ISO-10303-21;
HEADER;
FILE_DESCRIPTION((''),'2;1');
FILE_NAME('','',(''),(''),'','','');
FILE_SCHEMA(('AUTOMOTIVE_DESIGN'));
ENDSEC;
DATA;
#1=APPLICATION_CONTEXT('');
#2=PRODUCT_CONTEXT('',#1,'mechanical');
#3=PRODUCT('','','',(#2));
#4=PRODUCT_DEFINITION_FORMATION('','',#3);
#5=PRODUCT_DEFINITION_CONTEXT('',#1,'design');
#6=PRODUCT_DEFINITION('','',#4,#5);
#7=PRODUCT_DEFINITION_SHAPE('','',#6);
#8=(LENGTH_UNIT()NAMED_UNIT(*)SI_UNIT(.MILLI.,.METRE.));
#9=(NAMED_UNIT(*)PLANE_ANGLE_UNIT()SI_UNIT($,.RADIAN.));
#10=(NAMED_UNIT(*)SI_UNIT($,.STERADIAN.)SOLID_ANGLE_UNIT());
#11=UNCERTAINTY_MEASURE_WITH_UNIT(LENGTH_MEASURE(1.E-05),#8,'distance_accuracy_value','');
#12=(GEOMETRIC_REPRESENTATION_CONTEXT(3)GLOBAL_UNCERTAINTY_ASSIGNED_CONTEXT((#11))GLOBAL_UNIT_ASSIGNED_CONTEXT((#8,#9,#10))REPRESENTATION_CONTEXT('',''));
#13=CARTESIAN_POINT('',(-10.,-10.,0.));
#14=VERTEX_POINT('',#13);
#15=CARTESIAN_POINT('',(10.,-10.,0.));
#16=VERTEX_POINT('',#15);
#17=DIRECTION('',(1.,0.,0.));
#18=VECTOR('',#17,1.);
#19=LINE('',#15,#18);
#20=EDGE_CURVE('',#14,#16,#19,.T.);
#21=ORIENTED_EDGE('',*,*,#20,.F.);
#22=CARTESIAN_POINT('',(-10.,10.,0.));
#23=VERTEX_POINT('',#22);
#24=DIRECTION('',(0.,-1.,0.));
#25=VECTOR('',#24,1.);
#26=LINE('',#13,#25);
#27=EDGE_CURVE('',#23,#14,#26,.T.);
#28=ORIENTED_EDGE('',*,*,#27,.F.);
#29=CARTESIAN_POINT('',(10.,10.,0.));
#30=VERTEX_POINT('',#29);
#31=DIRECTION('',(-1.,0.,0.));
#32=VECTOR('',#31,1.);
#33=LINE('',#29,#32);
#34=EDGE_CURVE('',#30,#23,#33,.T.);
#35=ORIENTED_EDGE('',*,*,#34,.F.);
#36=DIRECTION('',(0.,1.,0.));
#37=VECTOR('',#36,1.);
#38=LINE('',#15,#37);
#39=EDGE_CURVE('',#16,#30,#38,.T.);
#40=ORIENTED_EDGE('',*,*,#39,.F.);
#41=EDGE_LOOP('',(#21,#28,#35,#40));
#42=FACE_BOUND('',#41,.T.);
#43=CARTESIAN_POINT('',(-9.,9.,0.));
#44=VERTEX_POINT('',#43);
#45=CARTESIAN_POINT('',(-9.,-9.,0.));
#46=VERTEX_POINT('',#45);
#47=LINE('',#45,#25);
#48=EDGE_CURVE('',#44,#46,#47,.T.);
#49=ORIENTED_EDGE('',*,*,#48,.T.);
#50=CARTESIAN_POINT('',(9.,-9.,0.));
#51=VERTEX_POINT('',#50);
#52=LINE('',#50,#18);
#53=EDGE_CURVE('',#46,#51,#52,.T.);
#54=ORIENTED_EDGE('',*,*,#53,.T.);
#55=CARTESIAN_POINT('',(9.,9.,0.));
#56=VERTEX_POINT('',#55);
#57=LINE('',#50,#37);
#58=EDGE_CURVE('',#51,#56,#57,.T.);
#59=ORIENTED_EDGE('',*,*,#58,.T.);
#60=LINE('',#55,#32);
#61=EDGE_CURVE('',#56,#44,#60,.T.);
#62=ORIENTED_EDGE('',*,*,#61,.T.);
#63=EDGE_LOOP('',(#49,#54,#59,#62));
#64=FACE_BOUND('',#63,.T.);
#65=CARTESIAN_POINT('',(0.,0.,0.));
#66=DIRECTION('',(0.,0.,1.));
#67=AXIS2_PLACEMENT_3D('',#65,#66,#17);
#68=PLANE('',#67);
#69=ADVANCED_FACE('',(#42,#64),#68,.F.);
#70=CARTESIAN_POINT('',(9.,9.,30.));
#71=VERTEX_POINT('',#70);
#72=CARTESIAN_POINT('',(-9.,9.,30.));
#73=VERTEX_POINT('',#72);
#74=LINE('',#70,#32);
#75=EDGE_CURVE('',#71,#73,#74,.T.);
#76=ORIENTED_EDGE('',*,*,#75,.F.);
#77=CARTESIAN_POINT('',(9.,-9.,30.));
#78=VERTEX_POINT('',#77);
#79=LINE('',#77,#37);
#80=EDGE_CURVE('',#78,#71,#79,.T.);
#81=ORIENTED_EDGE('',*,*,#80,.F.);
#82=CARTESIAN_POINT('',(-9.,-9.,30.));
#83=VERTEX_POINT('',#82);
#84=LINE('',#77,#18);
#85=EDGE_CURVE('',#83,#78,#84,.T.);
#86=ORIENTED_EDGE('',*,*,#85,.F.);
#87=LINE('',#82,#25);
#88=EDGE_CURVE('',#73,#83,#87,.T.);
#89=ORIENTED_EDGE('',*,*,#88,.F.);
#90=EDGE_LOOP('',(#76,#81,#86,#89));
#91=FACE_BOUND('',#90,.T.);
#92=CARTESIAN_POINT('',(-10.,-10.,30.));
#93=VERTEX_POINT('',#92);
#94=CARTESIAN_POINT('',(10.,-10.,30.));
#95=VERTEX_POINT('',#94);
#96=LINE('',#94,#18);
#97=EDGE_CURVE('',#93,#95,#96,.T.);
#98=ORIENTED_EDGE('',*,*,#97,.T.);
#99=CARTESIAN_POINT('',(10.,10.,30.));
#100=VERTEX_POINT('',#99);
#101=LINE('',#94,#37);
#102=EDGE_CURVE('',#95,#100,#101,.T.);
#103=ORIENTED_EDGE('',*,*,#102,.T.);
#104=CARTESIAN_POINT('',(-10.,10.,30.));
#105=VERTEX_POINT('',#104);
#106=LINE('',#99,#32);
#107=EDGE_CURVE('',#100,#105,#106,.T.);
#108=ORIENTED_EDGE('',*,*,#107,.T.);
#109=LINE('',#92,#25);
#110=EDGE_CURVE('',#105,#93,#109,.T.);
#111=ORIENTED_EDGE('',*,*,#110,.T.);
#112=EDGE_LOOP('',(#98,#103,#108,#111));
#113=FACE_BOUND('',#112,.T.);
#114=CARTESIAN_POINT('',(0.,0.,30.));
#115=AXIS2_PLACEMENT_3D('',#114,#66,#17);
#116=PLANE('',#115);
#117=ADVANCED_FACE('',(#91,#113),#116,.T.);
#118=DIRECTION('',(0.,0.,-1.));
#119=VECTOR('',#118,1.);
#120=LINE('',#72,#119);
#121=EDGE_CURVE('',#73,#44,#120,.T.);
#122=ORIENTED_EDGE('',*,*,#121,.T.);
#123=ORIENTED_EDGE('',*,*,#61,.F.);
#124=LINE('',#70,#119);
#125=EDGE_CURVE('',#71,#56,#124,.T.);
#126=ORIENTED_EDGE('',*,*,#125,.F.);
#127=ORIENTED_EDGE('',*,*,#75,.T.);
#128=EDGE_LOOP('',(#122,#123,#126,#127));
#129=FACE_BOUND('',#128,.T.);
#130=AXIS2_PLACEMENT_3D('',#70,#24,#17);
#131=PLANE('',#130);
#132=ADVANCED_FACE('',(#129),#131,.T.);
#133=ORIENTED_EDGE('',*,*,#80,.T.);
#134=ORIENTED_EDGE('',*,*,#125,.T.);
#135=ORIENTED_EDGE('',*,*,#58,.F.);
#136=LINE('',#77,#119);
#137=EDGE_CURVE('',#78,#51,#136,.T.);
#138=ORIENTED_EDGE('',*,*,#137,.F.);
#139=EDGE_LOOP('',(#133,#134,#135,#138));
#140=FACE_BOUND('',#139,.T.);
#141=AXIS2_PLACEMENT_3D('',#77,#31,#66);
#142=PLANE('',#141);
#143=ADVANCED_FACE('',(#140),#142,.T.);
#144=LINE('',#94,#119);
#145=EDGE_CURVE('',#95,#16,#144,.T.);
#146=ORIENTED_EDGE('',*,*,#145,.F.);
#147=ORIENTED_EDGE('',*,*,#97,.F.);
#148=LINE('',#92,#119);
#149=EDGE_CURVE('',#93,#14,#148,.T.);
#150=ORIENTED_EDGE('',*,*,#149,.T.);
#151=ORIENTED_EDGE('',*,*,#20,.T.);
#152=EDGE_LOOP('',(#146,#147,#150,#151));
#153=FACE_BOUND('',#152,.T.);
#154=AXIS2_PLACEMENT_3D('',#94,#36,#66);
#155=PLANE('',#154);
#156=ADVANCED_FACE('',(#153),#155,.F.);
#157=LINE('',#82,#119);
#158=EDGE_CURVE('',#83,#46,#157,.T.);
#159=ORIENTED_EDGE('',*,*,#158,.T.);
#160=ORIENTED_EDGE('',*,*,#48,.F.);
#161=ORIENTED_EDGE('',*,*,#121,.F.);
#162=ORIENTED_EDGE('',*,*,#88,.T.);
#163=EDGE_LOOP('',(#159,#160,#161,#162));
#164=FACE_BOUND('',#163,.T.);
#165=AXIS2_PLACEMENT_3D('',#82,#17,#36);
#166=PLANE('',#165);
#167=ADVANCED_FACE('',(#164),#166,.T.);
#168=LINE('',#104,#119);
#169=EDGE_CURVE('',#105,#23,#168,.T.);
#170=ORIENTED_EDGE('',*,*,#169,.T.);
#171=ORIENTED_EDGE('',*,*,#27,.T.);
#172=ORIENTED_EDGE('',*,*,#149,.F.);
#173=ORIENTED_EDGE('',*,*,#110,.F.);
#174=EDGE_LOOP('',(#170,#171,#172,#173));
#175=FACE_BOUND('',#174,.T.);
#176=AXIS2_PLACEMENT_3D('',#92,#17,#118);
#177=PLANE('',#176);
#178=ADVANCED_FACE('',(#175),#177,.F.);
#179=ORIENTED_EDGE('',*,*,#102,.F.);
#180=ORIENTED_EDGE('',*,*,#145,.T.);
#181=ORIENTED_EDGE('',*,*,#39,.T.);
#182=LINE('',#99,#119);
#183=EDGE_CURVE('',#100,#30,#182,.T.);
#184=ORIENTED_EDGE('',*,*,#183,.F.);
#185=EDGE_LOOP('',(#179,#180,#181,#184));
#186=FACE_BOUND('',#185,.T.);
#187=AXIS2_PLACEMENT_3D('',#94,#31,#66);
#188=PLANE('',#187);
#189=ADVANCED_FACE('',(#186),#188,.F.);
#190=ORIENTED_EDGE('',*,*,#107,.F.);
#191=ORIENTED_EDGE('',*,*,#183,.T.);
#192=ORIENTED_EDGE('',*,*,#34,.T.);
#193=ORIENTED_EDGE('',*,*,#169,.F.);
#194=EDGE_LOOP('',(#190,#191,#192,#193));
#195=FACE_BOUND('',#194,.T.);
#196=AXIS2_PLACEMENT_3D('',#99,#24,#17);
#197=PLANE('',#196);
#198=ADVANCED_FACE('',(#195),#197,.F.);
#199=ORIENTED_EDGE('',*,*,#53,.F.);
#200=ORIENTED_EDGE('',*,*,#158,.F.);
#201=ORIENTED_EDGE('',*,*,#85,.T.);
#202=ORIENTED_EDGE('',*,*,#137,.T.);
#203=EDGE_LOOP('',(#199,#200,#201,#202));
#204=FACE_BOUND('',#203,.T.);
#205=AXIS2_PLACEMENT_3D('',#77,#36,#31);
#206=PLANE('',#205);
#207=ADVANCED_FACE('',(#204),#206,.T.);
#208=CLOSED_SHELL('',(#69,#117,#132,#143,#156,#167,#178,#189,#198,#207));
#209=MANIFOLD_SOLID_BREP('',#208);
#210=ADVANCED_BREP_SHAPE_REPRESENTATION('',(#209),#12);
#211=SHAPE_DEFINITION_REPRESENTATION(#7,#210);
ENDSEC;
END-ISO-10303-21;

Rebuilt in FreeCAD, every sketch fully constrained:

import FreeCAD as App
import Part
import Sketcher
Q = App.Units.Quantity


def add_polygon(sketch, points):
    """Adds a closed chain of lines whose ends are joined by coincident constraints."""
    first, n = sketch.GeometryCount, len(points)
    for a, b in zip(points, points[1:] + points[:1]):
        sketch.addGeometry(Part.LineSegment(App.Vector(*a, 0), App.Vector(*b, 0)), False)
    for i in range(n):
        sketch.addConstraint(Sketcher.Constraint("Coincident", first + i, 2, first + (i + 1) % n, 1))

doc = App.newDocument("Part")
body = doc.addObject("PartDesign::Body", "Body")

sketch1 = body.newObject("Sketcher::SketchObject", "Sketch")
sketch1.AttachmentSupport = (doc.getObject("XY_Plane"), [""])
sketch1.MapMode = "FlatFace"
add_polygon(sketch1, [(-10, 10), (-10, -10), (10, -10), (10, 10)])
add_polygon(sketch1, [(9, -9), (-9, -9), (-9, 9), (9, 9)])
sketch1.addConstraint([
    Sketcher.Constraint("Vertical", 0),
    Sketcher.Constraint("Horizontal", 1),
    Sketcher.Constraint("Vertical", 2),
    Sketcher.Constraint("Horizontal", 3),
    Sketcher.Constraint("Horizontal", 4),
    Sketcher.Constraint("Vertical", 5),
    Sketcher.Constraint("Horizontal", 6),
    Sketcher.Constraint("Vertical", 7),
    Sketcher.Constraint("Symmetric", 0, 2, 2, 2, -1, 1),
    Sketcher.Constraint("Symmetric", 4, 2, 6, 2, -1, 1),
    Sketcher.Constraint("Equal", 3, 0),
    Sketcher.Constraint("Equal", 6, 5),
    Sketcher.Constraint("DistanceX", 1, 1, 1, 2, Q("20 mm")),
    Sketcher.Constraint("DistanceX", 4, 2, 4, 1, Q("18 mm")),
])
pad1 = body.newObject("PartDesign::Pad", "Pad")
pad1.Profile = sketch1
pad1.Length = 30

doc.recompute()
